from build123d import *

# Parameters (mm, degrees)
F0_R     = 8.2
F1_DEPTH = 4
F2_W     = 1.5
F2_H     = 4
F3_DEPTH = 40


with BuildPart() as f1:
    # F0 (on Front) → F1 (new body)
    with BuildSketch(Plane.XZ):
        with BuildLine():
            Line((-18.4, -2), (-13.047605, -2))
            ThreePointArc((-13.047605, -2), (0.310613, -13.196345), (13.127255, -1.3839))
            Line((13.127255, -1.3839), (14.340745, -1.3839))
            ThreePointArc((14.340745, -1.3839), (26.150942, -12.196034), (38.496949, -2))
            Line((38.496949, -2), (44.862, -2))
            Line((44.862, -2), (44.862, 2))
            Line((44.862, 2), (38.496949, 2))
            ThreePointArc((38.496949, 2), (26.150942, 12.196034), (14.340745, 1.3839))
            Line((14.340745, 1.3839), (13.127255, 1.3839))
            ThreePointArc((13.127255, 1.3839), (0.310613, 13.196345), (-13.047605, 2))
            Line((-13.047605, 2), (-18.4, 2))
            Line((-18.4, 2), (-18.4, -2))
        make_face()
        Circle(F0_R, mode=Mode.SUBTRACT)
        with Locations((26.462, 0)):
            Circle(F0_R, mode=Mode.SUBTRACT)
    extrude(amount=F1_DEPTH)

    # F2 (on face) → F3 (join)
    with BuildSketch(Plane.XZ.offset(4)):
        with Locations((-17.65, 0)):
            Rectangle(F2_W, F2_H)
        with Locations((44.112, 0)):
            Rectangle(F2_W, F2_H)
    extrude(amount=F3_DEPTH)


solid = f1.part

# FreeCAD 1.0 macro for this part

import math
import FreeCAD as App
import Part
import Sketcher

V = App.Vector
Q = App.Units.Quantity


def add_polygon(sketch, points):
    """Adds a closed chain of lines whose ends are joined by coincident constraints."""
    first, n = sketch.GeometryCount, len(points)
    for a, b in zip(points, points[1:] + points[:1]):
        sketch.addGeometry(Part.LineSegment(App.Vector(*a, 0), App.Vector(*b, 0)), False)
    for i in range(n):
        sketch.addConstraint(Sketcher.Constraint("Coincident", first + i, 2, first + (i + 1) % n, 1))

doc = App.newDocument("Part")
body = doc.addObject("PartDesign::Body", "Body")

sketch1 = body.newObject("Sketcher::SketchObject", "Sketch")
sketch1.AttachmentSupport = (doc.getObject("XZ_Plane"), [""])
sketch1.MapMode = "FlatFace"
sketch1.addGeometry([
    Part.LineSegment(V(-18.4, -2, 0), V(-13, -2, 0)),
    Part.ArcOfCircle(Part.Circle(V(0, 0, 0), V(0, 0, 1), 13.2), math.radians(-171), math.radians(-6)),
    Part.LineSegment(V(13.1, -1.4, 0), V(14.3, -1.4, 0)),
    Part.ArcOfCircle(Part.Circle(V(26.5, 0, 0), V(0, 0, 1), 12.2), math.radians(-173), math.radians(-9)),
    Part.LineSegment(V(38.5, -2, 0), V(44.9, -2, 0)),
    Part.LineSegment(V(44.9, -2, 0), V(44.9, 2, 0)),
    Part.LineSegment(V(44.9, 2, 0), V(38.5, 2, 0)),
    Part.ArcOfCircle(Part.Circle(V(26.5, 0, 0), V(0, 0, 1), 12.2), math.radians(9), math.radians(173)),
    Part.LineSegment(V(14.3, 1.4, 0), V(13.1, 1.4, 0)),
    Part.ArcOfCircle(Part.Circle(V(0, 0, 0), V(0, 0, 1), 13.2), math.radians(6), math.radians(171)),
    Part.LineSegment(V(-13, 2, 0), V(-18.4, 2, 0)),
    Part.LineSegment(V(-18.4, 2, 0), V(-18.4, -2, 0)),
    Part.Circle(V(0, 0, 0), V(0, 0, 1), 8.2),
    Part.Circle(V(26.5, 0, 0), V(0, 0, 1), 8.2),
], False)
sketch1.addConstraint([
    Sketcher.Constraint("Coincident", 0, 2, 1, 1),
    Sketcher.Constraint("Coincident", 1, 2, 2, 1),
    Sketcher.Constraint("Coincident", 2, 2, 3, 1),
    Sketcher.Constraint("Coincident", 3, 2, 4, 1),
    Sketcher.Constraint("Coincident", 4, 2, 5, 1),
    Sketcher.Constraint("Coincident", 5, 2, 6, 1),
    Sketcher.Constraint("Coincident", 6, 2, 7, 1),
    Sketcher.Constraint("Coincident", 7, 2, 8, 1),
    Sketcher.Constraint("Coincident", 8, 2, 9, 1),
    Sketcher.Constraint("Coincident", 9, 2, 10, 1),
    Sketcher.Constraint("Coincident", 10, 2, 11, 1),
    Sketcher.Constraint("Coincident", 11, 2, 0, 1),
    Sketcher.Constraint("Horizontal", 0),
    Sketcher.Constraint("Horizontal", 2),
    Sketcher.Constraint("Horizontal", 4),
    Sketcher.Constraint("Vertical", 5),
    Sketcher.Constraint("Horizontal", 6),
    Sketcher.Constraint("Horizontal", 8),
    Sketcher.Constraint("Horizontal", 10),
    Sketcher.Constraint("Vertical", 11),
    Sketcher.Constraint("Coincident", 1, 3, -1, 1),
    Sketcher.Constraint("Coincident", 9, 3, -1, 1),
    Sketcher.Constraint("Coincident", 12, 3, -1, 1),
    Sketcher.Constraint("Coincident", 7, 3, 3, 3),
    Sketcher.Constraint("Coincident", 13, 3, 3, 3),
    Sketcher.Constraint("Equal", 3, 7),
    Sketcher.Constraint("Equal", 1, 9),
    Sketcher.Constraint("Equal", 12, 13),
    Sketcher.Constraint("Symmetric", 3, 2, 6, 2, -1),
    Sketcher.Constraint("Horizontal", 0, 2, 3, 2),
    Sketcher.Constraint("Horizontal", 6, 2, 9, 2),
    Sketcher.Constraint("Vertical", 2, 2, 7, 2),
    Sketcher.Constraint("Diameter", 12, Q("16.4 mm")),
    Sketcher.Constraint("Radius", 1, Q("13.2 mm")),
    Sketcher.Constraint("Radius", 3, Q("12.2 mm")),
    Sketcher.Constraint("DistanceY", 5, 1, 5, 2, Q("4 mm")),
    Sketcher.Constraint("DistanceX", 10, 2, -1, 1, Q("18.4 mm")),
    Sketcher.Constraint("DistanceX", 13, 3, 4, 2, Q("18.4 mm")),
    Sketcher.Constraint("DistanceX", -1, 1, 3, 3, Q("26.462 mm")),
    Sketcher.Constraint("DistanceX", 2, 1, 2, 2, Q("1.21349 mm")),
])
pad1 = body.newObject("PartDesign::Pad", "Pad")
pad1.Profile = sketch1
pad1.Length = 4

sketch2 = body.newObject("Sketcher::SketchObject", "Sketch001")
sketch2.AttachmentSupport = (doc.getObject("XZ_Plane"), [""])
sketch2.MapMode = "FlatFace"
sketch2.AttachmentOffset = App.Placement(V(0, 0, 4), App.Rotation())
add_polygon(sketch2, [(-18.4, 2), (-18.4, -2), (-16.9, -2), (-16.9, 2)])
add_polygon(sketch2, [(43.4, 2), (43.4, -2), (44.9, -2), (44.9, 2)])
sketch2.addConstraint([
    Sketcher.Constraint("Vertical", 0),
    Sketcher.Constraint("Horizontal", 1),
    Sketcher.Constraint("Vertical", 2),
    Sketcher.Constraint("Horizontal", 3),
    Sketcher.Constraint("Vertical", 4),
    Sketcher.Constraint("Horizontal", 5),
    Sketcher.Constraint("Vertical", 6),
    Sketcher.Constraint("Horizontal", 7),
    Sketcher.Constraint("Horizontal", 1, 2, 4, 2),
    Sketcher.Constraint("Horizontal", 3, 2, 6, 2),
    Sketcher.Constraint("Equal", 3, 5),
    Sketcher.Constraint("DistanceY", 0, 2, 0, 1, Q("4 mm")),
    Sketcher.Constraint("DistanceX", 1, 1, 1, 2, Q("1.5 mm")),
    Sketcher.Constraint("DistanceY", 0, 2, -1, 1, Q("2 mm")),
    Sketcher.Constraint("DistanceX", 0, 2, -1, 1, Q("18.4 mm")),
    Sketcher.Constraint("DistanceX", -1, 1, 4, 2, Q("43.362 mm")),
])
pad2 = body.newObject("PartDesign::Pad", "Pad001")
pad2.Profile = sketch2
pad2.Length = 40

doc.recompute()
